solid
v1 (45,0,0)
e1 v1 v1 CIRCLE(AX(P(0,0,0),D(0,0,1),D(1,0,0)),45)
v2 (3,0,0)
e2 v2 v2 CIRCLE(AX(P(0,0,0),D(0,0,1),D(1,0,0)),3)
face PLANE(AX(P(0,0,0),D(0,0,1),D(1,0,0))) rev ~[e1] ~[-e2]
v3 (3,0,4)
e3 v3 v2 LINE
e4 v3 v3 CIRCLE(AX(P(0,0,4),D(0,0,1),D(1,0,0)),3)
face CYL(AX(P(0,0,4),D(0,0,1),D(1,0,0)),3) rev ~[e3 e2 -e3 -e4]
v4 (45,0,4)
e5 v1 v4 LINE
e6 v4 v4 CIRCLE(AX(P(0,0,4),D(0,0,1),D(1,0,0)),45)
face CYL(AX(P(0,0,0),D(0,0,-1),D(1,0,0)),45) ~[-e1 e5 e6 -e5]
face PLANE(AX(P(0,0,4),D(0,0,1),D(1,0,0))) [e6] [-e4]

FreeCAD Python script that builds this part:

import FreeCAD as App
import Part
import Sketcher
Q = App.Units.Quantity

doc = App.newDocument("Part")
body = doc.addObject("PartDesign::Body", "Body")

sketch1 = doc.addObject("Sketcher::SketchObject", "Sketch")
body.addObject(sketch1)
sketch1.AttachmentSupport = (doc.XY_Plane, [""])
sketch1.MapMode = "FlatFace"
sketch1.addGeometry(Part.Circle(App.Vector(0, 0, 0), App.Vector(0, 0, 1), 45), False)
sketch1.addConstraint(Sketcher.Constraint("Coincident", 0, 3, -1, 1))
sketch1.addConstraint(Sketcher.Constraint("Diameter", 0, Q("90 mm")))
pad1 = doc.addObject("PartDesign::Pad", "Pad")
body.addObject(pad1)
pad1.Profile = sketch1
pad1.Length = 4

sketch2 = doc.addObject("Sketcher::SketchObject", "Sketch001")
body.addObject(sketch2)
sketch2.AttachmentSupport = (doc.XY_Plane, [""])
sketch2.MapMode = "FlatFace"
sketch2.AttachmentOffset = App.Placement(App.Vector(0, 0, 4), App.Rotation())
sketch2.addGeometry(Part.Circle(App.Vector(0, 0, 0), App.Vector(0, 0, 1), 3), False)
sketch2.addConstraint(Sketcher.Constraint("Coincident", 0, 3, -1, 1))
sketch2.addConstraint(Sketcher.Constraint("Diameter", 0, Q("6 mm")))
pocket1 = doc.addObject("PartDesign::Pocket", "Pocket")
body.addObject(pocket1)
pocket1.Profile = sketch2
pocket1.Length = 9

doc.recompute()
